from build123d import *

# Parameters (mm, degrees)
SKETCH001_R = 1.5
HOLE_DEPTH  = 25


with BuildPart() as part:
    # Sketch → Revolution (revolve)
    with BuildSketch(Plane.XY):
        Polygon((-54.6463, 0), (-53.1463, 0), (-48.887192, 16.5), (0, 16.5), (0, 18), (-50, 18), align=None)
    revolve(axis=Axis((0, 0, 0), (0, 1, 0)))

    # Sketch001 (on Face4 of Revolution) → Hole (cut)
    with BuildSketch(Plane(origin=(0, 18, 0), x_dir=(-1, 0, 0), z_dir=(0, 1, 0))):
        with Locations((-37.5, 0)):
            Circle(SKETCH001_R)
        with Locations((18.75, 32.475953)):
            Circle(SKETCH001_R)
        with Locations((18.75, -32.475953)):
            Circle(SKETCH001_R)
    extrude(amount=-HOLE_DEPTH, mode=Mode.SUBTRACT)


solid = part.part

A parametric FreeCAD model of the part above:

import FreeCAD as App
import Part
import Sketcher

V = App.Vector

doc = App.newDocument("Part")
body = doc.addObject("PartDesign::Body", "Body")

sketch1 = body.newObject("Sketcher::SketchObject", "Sketch")
sketch1.AttachmentSupport = (doc.getObject("XY_Plane"), [""])
sketch1.MapMode = "FlatFace"
sketch1.addGeometry([
    Part.LineSegment(V(-54.6, 0, 0), V(-53.1, 0, 0)),
    Part.LineSegment(V(-53.1, 0, 0), V(-48.9, 16.5, 0)),
    Part.LineSegment(V(-48.9, 16.5, 0), V(0, 16.5, 0)),
    Part.LineSegment(V(0, 16.5, 0), V(0, 18, 0)),
    Part.LineSegment(V(0, 18, 0), V(-50, 18, 0)),
    Part.LineSegment(V(-50, 18, 0), V(-54.6, 0, 0)),
], False)
sketch1.addConstraint([
    Sketcher.Constraint("Coincident", 0, 2, 1, 1),
    Sketcher.Constraint("Coincident", 1, 2, 2, 1),
    Sketcher.Constraint("Coincident", 2, 2, 3, 1),
    Sketcher.Constraint("Coincident", 3, 2, 4, 1),
    Sketcher.Constraint("Coincident", 4, 2, 5, 1),
    Sketcher.Constraint("Coincident", 5, 2, 0, 1),
    Sketcher.Constraint("Horizontal", 0),
    Sketcher.Constraint("Horizontal", 2),
    Sketcher.Constraint("Vertical", 3),
    Sketcher.Constraint("Horizontal", 4),
    Sketcher.Constraint("PointOnObject", 0, 2, -1),
    Sketcher.Constraint("PointOnObject", 2, 2, -2),
    Sketcher.Constraint("Parallel", 1, 5),
    Sketcher.Constraint("Equal", 0, 3),
    Sketcher.Constraint("DistanceX", 4, 2, 4, 1, 50.0),
    Sketcher.Constraint("DistanceX", 0, 1, 0, 2, 1.5),
    Sketcher.Constraint("DistanceY", -1, 1, 3, 2, 18.0),
    Sketcher.Constraint("Distance", 5, 18.59),
])
revolution = body.newObject("PartDesign::Revolution", "Revolution")
revolution.Profile = sketch1
revolution.ReferenceAxis = (sketch1, ["V_Axis"])
revolution.Angle = 360

sketch2 = body.newObject("Sketcher::SketchObject", "Sketch001")
sketch2.AttachmentSupport = (doc.getObject("XZ_Plane"), [""])
sketch2.MapMode = "FlatFace"
sketch2.AttachmentOffset = App.Placement(V(0, 0, -18), App.Rotation())
sketch2.addGeometry([
    Part.Circle(V(37.5, 0, 0), V(0, 0, 1), 1.5),
    Part.Circle(V(-18.8, 32.5, 0), V(0, 0, 1), 1.5),
    Part.Circle(V(-18.8, -32.5, 0), V(0, 0, 1), 1.5),
], False)
sketch2.addConstraint([
    Sketcher.Constraint("Equal", 0, 1),
    Sketcher.Constraint("Equal", 1, 2),
    Sketcher.Constraint("Symmetric", 1, 3, 2, 3, -1),
    Sketcher.Constraint("PointOnObject", 0, 3, -1),
    Sketcher.Constraint("Diameter", 0, 3.0),
    Sketcher.Constraint("DistanceX", -1, 1, 0, 3, 37.5),
    Sketcher.Constraint("DistanceX", 1, 3, -1, 1, 18.75),
    Sketcher.Constraint("DistanceY", -1, 1, 1, 3, 32.475953),
])
pocket1 = body.newObject("PartDesign::Pocket", "Pocket")
pocket1.Profile = sketch2
pocket1.Length = 25
pocket1.Reversed = True

doc.recompute()
